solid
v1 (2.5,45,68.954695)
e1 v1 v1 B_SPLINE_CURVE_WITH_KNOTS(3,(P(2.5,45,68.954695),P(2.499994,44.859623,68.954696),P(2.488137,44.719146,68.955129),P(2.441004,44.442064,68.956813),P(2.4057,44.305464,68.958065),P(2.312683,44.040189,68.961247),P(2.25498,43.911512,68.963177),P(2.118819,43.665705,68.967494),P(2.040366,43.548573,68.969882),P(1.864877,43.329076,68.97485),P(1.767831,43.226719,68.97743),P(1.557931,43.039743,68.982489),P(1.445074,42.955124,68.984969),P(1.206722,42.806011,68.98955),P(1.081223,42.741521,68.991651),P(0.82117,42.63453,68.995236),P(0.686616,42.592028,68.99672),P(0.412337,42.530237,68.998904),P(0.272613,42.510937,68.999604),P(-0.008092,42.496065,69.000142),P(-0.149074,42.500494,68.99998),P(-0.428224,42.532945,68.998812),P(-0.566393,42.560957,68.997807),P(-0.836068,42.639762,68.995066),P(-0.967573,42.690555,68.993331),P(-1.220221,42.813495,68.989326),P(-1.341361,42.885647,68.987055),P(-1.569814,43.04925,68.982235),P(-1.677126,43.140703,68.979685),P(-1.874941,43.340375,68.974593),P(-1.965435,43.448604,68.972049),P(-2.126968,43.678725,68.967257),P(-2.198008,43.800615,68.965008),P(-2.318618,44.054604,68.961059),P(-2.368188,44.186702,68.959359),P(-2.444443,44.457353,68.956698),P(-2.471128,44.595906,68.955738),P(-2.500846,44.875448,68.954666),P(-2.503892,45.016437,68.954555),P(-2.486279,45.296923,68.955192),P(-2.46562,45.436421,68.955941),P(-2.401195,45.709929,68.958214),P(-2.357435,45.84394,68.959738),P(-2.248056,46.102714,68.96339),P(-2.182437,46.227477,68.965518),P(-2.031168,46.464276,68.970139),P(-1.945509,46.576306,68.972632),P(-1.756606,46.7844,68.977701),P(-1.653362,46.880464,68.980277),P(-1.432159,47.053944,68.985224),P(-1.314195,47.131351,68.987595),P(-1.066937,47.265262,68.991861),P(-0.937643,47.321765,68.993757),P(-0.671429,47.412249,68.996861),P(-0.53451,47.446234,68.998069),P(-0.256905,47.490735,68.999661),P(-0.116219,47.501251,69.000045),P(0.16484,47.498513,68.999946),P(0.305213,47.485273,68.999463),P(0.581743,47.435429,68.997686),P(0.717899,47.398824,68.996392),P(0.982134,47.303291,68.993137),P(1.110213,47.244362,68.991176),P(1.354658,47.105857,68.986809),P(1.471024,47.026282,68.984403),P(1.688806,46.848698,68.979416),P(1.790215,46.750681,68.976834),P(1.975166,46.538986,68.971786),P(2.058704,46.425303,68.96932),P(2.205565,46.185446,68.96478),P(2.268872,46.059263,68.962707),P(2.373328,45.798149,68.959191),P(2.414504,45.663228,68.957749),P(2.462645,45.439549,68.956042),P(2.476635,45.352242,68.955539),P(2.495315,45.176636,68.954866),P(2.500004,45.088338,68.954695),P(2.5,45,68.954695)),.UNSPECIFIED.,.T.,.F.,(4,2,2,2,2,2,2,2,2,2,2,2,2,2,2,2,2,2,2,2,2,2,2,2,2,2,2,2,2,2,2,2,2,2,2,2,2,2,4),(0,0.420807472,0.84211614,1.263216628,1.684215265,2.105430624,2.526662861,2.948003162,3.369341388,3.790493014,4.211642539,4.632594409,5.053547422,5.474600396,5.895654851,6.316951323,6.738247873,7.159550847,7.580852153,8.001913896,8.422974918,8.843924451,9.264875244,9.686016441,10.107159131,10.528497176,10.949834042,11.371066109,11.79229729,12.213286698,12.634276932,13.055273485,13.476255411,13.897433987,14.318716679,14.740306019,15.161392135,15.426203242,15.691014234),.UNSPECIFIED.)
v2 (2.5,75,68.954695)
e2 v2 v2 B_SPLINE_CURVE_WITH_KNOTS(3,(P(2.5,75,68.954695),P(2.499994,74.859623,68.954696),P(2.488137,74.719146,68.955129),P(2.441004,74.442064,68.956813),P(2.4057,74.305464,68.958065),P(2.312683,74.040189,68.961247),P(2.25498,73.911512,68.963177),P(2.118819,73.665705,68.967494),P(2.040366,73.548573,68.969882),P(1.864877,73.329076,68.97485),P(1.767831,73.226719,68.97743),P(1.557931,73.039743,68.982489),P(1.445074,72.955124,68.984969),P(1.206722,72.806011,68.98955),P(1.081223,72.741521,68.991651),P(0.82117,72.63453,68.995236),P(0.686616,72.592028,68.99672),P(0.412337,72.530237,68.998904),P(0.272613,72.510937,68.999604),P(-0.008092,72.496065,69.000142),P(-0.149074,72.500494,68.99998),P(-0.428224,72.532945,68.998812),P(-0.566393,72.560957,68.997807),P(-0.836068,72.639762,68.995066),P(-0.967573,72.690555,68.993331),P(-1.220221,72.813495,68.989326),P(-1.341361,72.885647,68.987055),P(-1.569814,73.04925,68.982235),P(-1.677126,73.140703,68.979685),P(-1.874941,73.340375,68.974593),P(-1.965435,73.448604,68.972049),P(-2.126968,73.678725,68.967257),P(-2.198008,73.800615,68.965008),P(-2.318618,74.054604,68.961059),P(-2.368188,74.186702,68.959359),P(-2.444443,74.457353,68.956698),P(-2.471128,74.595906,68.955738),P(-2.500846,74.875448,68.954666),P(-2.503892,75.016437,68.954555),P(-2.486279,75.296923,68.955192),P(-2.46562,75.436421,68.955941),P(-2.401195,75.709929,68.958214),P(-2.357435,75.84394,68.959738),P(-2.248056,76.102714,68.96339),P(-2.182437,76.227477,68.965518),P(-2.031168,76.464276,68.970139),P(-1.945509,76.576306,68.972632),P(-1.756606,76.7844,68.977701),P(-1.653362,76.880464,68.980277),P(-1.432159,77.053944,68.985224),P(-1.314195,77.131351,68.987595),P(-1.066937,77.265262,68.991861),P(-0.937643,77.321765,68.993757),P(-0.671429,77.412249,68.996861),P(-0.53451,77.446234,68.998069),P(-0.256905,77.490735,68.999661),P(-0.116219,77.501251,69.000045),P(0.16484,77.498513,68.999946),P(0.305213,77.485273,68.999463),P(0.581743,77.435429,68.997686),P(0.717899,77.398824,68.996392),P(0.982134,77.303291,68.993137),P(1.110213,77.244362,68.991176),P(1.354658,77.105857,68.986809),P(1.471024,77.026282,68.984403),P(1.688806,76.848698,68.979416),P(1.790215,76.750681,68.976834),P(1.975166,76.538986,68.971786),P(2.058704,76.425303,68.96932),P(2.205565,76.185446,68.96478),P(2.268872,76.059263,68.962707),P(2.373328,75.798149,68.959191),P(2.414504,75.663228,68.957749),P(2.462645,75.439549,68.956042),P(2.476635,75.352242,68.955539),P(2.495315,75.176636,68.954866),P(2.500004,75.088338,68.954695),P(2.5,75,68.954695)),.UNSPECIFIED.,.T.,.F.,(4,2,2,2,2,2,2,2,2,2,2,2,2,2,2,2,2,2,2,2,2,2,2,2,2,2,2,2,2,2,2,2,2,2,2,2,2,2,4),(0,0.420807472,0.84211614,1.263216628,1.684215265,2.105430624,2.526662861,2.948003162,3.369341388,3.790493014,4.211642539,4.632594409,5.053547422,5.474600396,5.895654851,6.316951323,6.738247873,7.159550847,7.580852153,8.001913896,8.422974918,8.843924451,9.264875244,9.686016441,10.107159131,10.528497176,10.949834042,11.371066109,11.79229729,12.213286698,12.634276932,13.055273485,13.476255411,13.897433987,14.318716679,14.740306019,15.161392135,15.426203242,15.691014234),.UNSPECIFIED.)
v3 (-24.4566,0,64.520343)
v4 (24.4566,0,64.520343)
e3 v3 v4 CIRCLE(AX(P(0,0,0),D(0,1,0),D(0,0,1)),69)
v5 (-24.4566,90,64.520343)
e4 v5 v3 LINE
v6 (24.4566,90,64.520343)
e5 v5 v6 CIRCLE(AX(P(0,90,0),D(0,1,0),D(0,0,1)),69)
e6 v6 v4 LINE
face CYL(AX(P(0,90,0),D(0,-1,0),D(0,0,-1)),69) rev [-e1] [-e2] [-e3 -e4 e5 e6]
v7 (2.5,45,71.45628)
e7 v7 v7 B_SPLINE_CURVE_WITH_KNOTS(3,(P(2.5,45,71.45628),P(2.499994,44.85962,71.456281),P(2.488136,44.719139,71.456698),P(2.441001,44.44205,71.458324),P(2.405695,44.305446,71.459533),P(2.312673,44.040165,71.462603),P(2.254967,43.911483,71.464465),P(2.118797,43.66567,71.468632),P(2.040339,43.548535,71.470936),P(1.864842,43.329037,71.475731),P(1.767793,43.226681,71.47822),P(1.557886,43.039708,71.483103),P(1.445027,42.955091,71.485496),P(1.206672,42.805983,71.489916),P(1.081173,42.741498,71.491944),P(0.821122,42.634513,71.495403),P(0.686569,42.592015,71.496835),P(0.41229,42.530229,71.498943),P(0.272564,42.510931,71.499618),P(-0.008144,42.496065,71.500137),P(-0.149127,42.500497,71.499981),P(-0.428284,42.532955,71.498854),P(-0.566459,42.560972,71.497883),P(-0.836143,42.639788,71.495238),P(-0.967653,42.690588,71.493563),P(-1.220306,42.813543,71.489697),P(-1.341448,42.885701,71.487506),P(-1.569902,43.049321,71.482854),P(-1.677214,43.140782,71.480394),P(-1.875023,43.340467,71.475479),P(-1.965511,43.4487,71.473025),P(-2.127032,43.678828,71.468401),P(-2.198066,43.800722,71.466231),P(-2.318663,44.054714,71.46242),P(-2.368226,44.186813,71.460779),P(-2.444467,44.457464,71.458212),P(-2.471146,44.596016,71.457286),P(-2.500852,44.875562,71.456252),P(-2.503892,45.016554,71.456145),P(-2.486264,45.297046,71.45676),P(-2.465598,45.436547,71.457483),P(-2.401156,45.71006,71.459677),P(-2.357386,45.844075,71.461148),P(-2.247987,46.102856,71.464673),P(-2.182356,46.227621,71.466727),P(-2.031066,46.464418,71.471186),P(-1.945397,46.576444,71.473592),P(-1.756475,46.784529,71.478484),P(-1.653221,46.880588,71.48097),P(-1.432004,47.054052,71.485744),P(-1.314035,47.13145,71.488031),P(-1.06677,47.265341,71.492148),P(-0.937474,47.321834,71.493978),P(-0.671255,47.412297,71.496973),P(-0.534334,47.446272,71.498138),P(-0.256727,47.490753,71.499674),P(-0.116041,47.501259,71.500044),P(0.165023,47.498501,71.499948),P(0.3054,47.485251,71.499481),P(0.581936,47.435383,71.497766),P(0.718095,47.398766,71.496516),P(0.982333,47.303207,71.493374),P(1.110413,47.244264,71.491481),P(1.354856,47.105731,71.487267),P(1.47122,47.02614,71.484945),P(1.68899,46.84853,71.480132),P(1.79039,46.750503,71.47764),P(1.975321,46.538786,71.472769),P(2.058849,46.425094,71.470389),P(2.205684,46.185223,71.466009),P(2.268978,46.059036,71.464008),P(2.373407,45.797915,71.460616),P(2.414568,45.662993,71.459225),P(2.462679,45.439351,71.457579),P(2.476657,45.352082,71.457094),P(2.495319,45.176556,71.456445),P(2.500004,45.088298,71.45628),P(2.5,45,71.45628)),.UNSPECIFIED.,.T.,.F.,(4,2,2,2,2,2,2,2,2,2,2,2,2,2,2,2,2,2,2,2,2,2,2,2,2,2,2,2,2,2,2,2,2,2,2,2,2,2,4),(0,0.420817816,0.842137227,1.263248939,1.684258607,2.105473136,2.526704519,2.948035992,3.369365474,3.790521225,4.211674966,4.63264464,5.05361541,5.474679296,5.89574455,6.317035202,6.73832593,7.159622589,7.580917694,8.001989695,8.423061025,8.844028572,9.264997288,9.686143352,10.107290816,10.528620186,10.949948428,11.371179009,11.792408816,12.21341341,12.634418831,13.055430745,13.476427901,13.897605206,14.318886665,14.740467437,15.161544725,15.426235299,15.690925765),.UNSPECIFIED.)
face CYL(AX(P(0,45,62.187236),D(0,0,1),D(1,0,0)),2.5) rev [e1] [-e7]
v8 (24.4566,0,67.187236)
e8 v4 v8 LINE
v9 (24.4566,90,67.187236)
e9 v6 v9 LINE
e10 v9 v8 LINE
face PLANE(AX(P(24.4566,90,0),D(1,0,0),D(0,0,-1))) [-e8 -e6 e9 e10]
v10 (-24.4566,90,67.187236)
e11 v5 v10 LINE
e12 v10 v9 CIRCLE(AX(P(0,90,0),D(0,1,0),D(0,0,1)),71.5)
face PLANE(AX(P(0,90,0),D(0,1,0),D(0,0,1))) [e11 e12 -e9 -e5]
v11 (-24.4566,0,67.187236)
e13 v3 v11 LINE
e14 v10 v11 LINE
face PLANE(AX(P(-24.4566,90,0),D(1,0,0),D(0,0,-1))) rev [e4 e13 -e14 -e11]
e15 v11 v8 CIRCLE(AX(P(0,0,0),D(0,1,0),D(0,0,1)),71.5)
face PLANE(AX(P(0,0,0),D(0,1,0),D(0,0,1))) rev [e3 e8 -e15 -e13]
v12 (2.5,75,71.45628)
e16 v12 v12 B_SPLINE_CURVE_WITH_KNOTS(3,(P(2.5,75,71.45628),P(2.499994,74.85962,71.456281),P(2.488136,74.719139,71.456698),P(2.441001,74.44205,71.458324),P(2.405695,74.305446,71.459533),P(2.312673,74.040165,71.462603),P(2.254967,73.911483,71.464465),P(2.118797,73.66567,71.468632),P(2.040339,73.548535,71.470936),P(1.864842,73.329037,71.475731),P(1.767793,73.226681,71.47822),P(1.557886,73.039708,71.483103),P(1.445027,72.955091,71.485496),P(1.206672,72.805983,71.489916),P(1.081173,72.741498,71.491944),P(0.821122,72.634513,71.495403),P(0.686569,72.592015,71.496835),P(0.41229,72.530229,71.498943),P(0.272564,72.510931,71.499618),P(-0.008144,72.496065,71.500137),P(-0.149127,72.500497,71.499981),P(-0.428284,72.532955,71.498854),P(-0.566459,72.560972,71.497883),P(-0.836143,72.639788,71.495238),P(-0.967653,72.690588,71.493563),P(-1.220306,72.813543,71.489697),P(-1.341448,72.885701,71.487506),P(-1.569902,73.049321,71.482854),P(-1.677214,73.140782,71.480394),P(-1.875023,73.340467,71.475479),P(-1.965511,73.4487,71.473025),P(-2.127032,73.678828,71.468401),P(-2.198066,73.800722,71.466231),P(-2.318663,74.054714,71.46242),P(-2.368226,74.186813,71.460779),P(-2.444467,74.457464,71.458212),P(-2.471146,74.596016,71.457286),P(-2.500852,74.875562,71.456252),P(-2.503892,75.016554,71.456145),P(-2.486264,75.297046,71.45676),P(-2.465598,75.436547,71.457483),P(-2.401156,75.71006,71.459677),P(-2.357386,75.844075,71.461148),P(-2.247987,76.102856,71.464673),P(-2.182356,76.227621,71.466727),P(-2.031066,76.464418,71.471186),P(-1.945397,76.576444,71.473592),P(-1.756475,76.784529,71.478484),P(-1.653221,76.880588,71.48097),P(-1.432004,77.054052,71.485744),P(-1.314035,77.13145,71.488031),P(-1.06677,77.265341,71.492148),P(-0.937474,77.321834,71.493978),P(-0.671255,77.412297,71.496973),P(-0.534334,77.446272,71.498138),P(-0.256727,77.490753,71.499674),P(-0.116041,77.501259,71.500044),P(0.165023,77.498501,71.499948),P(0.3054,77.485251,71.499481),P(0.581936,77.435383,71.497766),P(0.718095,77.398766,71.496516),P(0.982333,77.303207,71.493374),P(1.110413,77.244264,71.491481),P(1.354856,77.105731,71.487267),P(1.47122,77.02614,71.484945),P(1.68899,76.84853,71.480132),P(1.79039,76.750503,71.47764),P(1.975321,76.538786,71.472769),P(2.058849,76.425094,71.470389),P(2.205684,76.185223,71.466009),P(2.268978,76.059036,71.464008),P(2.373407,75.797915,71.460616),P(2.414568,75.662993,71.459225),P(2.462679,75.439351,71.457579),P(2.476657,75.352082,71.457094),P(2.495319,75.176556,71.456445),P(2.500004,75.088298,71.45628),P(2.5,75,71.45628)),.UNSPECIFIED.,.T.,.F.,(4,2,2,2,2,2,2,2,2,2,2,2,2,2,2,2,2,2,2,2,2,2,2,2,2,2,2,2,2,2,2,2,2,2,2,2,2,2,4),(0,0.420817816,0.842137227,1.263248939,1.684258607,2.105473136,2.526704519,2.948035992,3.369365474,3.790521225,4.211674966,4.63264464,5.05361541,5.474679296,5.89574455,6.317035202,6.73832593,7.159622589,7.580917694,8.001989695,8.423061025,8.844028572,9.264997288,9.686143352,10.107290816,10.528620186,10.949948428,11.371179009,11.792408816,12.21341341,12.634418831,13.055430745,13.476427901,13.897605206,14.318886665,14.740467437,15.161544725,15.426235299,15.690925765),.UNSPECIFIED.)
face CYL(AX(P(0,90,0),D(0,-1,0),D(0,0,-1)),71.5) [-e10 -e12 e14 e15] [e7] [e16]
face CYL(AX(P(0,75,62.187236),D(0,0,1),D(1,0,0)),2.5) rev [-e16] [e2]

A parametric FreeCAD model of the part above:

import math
import FreeCAD as App
import Part
import Sketcher
Q = App.Units.Quantity

doc = App.newDocument("Part")
body = doc.addObject("PartDesign::Body", "Body")

sketch1 = body.newObject("Sketcher::SketchObject", "Sketch")
sketch1.AttachmentSupport = (doc.getObject("XZ_Plane"), [""])
sketch1.MapMode = "FlatFace"
sketch1.addGeometry([
    Part.ArcOfCircle(Part.Circle(App.Vector(0, 0, 0), App.Vector(0, 0, 1), 69), math.radians(98.33), math.radians(110.76)),
    Part.LineSegment(App.Vector(-24.5, 64.5, 0), App.Vector(-24.5, 67.2, 0)),
    Part.ArcOfCircle(Part.Circle(App.Vector(0, 0, 0), App.Vector(0, 0, 1), 71.5), math.radians(70), math.radians(110)),
    Part.LineSegment(App.Vector(24.5, 67.2, 0), App.Vector(24.5, 64.5, 0)),
    Part.ArcOfCircle(Part.Circle(App.Vector(0, 0, 0), App.Vector(0, 0, 1), 69), math.radians(69.24), math.radians(81.67)),
    Part.ArcOfCircle(Part.Circle(App.Vector(0, 0, 0), App.Vector(0, 0, 1), 69), math.radians(81.67), math.radians(98.33)),
], False)
sketch1.addConstraint([
    Sketcher.Constraint("Coincident", 0, 2, 1, 1),
    Sketcher.Constraint("Coincident", 1, 2, 2, 2),
    Sketcher.Constraint("Coincident", 2, 1, 3, 1),
    Sketcher.Constraint("Coincident", 3, 2, 4, 1),
    Sketcher.Constraint("Tangent", 4, 2, 5, 1),
    Sketcher.Constraint("Tangent", 5, 2, 0, 1),
    Sketcher.Constraint("Vertical", 1),
    Sketcher.Constraint("Vertical", 3),
    Sketcher.Constraint("Coincident", 0, 3, -1, 1),
    Sketcher.Constraint("Coincident", 2, 3, -1, 1),
    Sketcher.Constraint("Coincident", 4, 3, -1, 1),
    Sketcher.Constraint("Horizontal", 1, 2, 2, 1),
    Sketcher.Constraint("Horizontal", 4, 2, 5, 2),
    Sketcher.Constraint("Radius", 0, Q("69 mm")),
    Sketcher.Constraint("Radius", 2, Q("71.5 mm")),
    Sketcher.Constraint("DistanceX", -1, 1, 4, 2, Q("10 mm")),
    Sketcher.Constraint("DistanceX", 0, 2, -1, 1, Q("24.4566 mm")),
])
pad1 = body.newObject("PartDesign::Pad", "Pad")
pad1.Profile = sketch1
pad1.Length = 90
pad1.Reversed = True

sketch2 = body.newObject("Sketcher::SketchObject", "Sketch001")
sketch2.AttachmentSupport = (doc.getObject("XY_Plane"), [""])
sketch2.MapMode = "FlatFace"
sketch2.AttachmentOffset = App.Placement(App.Vector(0, 0, 67.187236), App.Rotation())
sketch2.addGeometry([
    Part.Circle(App.Vector(0, 75, 0), App.Vector(0, 0, 1), 2.5),
    Part.Circle(App.Vector(0, 45, 0), App.Vector(0, 0, 1), 2.5),
], False)
sketch2.addConstraint([
    Sketcher.Constraint("Equal", 0, 1),
    Sketcher.Constraint("PointOnObject", 0, 3, -2),
    Sketcher.Constraint("PointOnObject", 1, 3, -2),
    Sketcher.Constraint("Diameter", 0, Q("5 mm")),
    Sketcher.Constraint("DistanceY", -1, 1, 0, 3, Q("75 mm")),
    Sketcher.Constraint("DistanceY", -1, 1, 1, 3, Q("45 mm")),
])
pocket1 = body.newObject("PartDesign::Pocket", "Pocket")
pocket1.Profile = sketch2
pocket1.Length = 10
pocket1.Midplane = True

doc.recompute()
